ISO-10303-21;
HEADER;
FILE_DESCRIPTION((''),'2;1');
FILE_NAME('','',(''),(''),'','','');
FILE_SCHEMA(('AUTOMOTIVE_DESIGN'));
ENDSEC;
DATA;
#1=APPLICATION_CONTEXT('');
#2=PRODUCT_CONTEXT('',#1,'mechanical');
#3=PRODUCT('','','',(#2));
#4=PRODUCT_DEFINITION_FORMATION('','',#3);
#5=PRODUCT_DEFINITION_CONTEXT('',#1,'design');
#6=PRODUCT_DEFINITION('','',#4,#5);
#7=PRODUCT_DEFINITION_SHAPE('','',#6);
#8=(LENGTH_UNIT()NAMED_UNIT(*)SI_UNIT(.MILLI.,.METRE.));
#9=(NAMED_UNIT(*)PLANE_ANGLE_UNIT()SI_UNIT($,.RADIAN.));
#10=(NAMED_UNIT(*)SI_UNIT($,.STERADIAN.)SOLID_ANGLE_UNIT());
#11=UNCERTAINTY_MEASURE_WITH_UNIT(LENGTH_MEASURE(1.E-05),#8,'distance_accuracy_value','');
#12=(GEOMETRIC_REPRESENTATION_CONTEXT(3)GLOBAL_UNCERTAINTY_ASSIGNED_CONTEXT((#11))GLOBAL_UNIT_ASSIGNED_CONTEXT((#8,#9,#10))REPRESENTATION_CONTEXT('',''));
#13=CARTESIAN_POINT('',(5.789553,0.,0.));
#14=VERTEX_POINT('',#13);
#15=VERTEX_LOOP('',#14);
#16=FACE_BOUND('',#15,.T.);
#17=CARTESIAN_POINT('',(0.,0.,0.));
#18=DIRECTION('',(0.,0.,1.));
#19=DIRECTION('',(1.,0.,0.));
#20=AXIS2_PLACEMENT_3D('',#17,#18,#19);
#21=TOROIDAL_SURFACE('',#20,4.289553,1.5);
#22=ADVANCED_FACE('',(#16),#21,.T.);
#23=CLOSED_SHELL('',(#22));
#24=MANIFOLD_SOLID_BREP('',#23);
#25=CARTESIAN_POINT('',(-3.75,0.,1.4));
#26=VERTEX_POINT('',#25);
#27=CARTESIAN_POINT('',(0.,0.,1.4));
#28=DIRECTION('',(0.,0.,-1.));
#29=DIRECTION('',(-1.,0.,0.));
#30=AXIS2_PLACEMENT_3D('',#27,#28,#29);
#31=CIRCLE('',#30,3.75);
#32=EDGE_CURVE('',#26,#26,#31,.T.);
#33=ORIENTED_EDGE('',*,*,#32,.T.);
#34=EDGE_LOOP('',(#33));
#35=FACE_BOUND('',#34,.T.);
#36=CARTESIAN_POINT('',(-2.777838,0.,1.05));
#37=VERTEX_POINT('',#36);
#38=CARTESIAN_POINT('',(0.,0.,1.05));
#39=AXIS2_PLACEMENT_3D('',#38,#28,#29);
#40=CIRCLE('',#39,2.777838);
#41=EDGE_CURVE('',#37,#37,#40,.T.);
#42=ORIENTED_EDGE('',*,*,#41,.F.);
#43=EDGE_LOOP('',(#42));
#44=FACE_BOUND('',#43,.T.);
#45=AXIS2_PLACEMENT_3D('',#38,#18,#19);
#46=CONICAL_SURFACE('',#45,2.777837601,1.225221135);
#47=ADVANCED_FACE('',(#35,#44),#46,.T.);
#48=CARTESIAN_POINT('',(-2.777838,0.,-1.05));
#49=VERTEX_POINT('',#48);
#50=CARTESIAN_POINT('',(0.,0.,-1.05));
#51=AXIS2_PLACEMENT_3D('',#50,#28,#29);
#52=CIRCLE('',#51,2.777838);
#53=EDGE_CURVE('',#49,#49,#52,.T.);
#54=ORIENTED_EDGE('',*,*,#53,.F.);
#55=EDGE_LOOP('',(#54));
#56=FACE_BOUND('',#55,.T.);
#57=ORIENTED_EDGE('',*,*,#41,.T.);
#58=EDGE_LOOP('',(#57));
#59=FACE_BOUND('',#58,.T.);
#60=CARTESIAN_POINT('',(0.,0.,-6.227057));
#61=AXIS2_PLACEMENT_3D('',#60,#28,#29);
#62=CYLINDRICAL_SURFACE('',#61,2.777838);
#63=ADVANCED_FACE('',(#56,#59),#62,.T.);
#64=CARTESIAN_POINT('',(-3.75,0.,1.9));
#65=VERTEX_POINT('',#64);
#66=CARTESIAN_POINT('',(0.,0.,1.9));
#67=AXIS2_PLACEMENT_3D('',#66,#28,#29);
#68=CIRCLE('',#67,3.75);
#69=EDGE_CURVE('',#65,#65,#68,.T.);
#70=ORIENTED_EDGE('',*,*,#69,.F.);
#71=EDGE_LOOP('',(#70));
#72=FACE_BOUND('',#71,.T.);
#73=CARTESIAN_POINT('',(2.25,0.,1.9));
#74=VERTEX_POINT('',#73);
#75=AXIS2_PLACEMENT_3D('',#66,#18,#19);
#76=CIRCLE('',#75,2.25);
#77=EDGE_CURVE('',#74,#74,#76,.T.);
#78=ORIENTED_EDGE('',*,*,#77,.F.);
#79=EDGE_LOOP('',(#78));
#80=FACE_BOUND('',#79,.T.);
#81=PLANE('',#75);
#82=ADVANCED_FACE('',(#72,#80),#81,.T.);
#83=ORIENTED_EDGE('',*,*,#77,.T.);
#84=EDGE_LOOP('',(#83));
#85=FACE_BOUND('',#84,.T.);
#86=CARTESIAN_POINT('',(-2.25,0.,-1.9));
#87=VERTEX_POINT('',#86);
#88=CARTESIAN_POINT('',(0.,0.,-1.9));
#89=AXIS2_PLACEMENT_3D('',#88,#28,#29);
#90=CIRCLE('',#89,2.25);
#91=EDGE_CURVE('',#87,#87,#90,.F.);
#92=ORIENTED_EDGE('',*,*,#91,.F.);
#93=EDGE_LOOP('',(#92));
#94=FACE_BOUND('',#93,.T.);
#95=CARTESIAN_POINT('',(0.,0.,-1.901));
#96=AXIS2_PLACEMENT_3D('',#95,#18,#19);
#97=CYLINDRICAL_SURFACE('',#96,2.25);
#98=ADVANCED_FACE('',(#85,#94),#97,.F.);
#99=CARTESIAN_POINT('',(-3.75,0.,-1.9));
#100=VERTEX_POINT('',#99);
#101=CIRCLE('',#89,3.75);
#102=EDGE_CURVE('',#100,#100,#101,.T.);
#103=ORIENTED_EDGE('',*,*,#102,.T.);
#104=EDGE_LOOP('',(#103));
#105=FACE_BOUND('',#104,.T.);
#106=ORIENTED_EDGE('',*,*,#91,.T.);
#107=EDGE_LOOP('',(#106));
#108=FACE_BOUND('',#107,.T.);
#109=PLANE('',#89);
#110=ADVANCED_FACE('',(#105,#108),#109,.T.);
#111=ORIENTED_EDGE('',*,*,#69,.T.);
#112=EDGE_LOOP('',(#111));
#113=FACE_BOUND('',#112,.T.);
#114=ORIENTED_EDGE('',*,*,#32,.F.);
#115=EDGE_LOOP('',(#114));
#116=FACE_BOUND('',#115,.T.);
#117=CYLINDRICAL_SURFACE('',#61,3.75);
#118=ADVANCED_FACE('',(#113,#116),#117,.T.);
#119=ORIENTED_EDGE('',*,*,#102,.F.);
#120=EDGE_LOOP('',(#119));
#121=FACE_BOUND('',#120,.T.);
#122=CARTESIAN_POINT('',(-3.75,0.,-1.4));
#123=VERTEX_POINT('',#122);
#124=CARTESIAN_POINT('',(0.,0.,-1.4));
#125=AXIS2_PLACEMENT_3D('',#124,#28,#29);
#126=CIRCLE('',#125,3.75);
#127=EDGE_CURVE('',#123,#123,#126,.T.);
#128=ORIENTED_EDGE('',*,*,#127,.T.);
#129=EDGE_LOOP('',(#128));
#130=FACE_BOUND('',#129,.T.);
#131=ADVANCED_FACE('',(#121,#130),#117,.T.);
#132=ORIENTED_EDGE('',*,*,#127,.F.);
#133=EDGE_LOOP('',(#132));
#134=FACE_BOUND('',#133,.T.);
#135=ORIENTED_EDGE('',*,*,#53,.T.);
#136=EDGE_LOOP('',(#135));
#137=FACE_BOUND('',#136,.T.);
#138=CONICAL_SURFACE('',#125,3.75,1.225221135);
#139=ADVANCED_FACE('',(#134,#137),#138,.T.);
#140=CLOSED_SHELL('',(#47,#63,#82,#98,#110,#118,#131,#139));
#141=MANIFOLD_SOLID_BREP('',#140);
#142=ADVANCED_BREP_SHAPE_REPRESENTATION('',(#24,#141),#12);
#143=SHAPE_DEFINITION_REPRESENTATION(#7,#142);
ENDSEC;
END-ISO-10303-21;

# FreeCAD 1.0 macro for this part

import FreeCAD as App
import Part
import Sketcher
from FreeCAD import Vector
Q = App.Units.Quantity

doc = App.newDocument("Part")
body = doc.addObject("PartDesign::Body", "Body")

sketch1 = body.newObject("Sketcher::SketchObject", "Sketch")
sketch1.AttachmentSupport = (doc.getObject("YZ_Plane"), [""])
sketch1.MapMode = "FlatFace"
sketch1.addGeometry(Part.LineSegment(Vector(3.75, 1.9, 0), Vector(0, 1.9, 0)), False)
sketch1.addGeometry(Part.LineSegment(Vector(0, 1.9, 0), Vector(0, -1.9, 0)), False)
sketch1.addGeometry(Part.LineSegment(Vector(0, -1.9, 0), Vector(3.75, -1.9, 0)), False)
sketch1.addGeometry(Part.LineSegment(Vector(3.75, -1.9, 0), Vector(3.75, -1.4, 0)), False)
sketch1.addGeometry(Part.LineSegment(Vector(3.75, -1.4, 0), Vector(2.777838, -1.05, 0)), False)
sketch1.addGeometry(Part.LineSegment(Vector(2.777838, -1.05, 0), Vector(2.777838, 1.05, 0)), False)
sketch1.addGeometry(Part.LineSegment(Vector(2.777838, 1.05, 0), Vector(3.75, 1.4, 0)), False)
sketch1.addGeometry(Part.LineSegment(Vector(3.75, 1.4, 0), Vector(3.75, 1.9, 0)), False)
sketch1.addConstraint(Sketcher.Constraint("Coincident", 0, 2, 1, 1))
sketch1.addConstraint(Sketcher.Constraint("Coincident", 1, 2, 2, 1))
sketch1.addConstraint(Sketcher.Constraint("Coincident", 2, 2, 3, 1))
sketch1.addConstraint(Sketcher.Constraint("Coincident", 3, 2, 4, 1))
sketch1.addConstraint(Sketcher.Constraint("Coincident", 4, 2, 5, 1))
sketch1.addConstraint(Sketcher.Constraint("Coincident", 5, 2, 6, 1))
sketch1.addConstraint(Sketcher.Constraint("Coincident", 6, 2, 7, 1))
sketch1.addConstraint(Sketcher.Constraint("Coincident", 7, 2, 0, 1))
sketch1.addConstraint(Sketcher.Constraint("Horizontal", 0))
sketch1.addConstraint(Sketcher.Constraint("Vertical", 1))
sketch1.addConstraint(Sketcher.Constraint("Horizontal", 2))
sketch1.addConstraint(Sketcher.Constraint("Vertical", 3))
sketch1.addConstraint(Sketcher.Constraint("Vertical", 5))
sketch1.addConstraint(Sketcher.Constraint("Vertical", 7))
sketch1.addConstraint(Sketcher.Constraint("Symmetric", 0, 2, 1, 2, -1, 1))
sketch1.addConstraint(Sketcher.Constraint("Symmetric", 3, 2, 6, 2, -1))
sketch1.addConstraint(Sketcher.Constraint("Equal", 4, 6))
sketch1.addConstraint(Sketcher.Constraint("DistanceY", 1, 2, 1, 1, 3.8))
sketch1.addConstraint(Sketcher.Constraint("DistanceY", 3, 1, 3, 2, 0.5))
sketch1.addConstraint(Sketcher.Constraint("DistanceY", 5, 1, 5, 2, 2.1))
sketch1.addConstraint(Sketcher.Constraint("Angle", 4, Q("160.2 deg")))
sketch1.addConstraint(Sketcher.Constraint("DistanceX", 0, 2, 0, 1, 3.75))
revolution = body.newObject("PartDesign::Revolution", "Revolution")
revolution.Profile = sketch1
revolution.ReferenceAxis = (sketch1, ["V_Axis"])
revolution.Angle = 360

sketch2 = body.newObject("Sketcher::SketchObject", "Sketch001")
sketch2.AttachmentSupport = (doc.getObject("XY_Plane"), [""])
sketch2.MapMode = "FlatFace"
sketch2.AttachmentOffset = App.Placement(Vector(0, 0, 1.9), App.Rotation())
sketch2.addGeometry(Part.Circle(Vector(0, 0, 0), Vector(0, 0, 1), 2.25), False)
sketch2.addConstraint(Sketcher.Constraint("Coincident", 0, 3, -1, 1))
sketch2.addConstraint(Sketcher.Constraint("Diameter", 0, 4.5))
pocket1 = body.newObject("PartDesign::Pocket", "Pocket")
pocket1.Profile = sketch2
pocket1.Length = 3.8
body2 = doc.addObject("PartDesign::Body", "Body001")

sketch3 = body2.newObject("Sketcher::SketchObject", "Sketch002")
sketch3.AttachmentSupport = (doc.getObject("YZ_Plane001"), [""])
sketch3.MapMode = "FlatFace"
sketch3.addGeometry(Part.Circle(Vector(4.289553, 0, 0), Vector(0, 0, 1), 1.5), False)
sketch3.addConstraint(Sketcher.Constraint("PointOnObject", 0, 3, -1))
sketch3.addConstraint(Sketcher.Constraint("Diameter", 0, 3.0))
sketch3.addConstraint(Sketcher.Constraint("DistanceX", -1, 1, 0, 3, 4.289553))
revolution2 = body2.newObject("PartDesign::Revolution", "Revolution001")
revolution2.Profile = sketch3
revolution2.ReferenceAxis = (sketch3, ["V_Axis"])
revolution2.Angle = 360

doc.recompute()
